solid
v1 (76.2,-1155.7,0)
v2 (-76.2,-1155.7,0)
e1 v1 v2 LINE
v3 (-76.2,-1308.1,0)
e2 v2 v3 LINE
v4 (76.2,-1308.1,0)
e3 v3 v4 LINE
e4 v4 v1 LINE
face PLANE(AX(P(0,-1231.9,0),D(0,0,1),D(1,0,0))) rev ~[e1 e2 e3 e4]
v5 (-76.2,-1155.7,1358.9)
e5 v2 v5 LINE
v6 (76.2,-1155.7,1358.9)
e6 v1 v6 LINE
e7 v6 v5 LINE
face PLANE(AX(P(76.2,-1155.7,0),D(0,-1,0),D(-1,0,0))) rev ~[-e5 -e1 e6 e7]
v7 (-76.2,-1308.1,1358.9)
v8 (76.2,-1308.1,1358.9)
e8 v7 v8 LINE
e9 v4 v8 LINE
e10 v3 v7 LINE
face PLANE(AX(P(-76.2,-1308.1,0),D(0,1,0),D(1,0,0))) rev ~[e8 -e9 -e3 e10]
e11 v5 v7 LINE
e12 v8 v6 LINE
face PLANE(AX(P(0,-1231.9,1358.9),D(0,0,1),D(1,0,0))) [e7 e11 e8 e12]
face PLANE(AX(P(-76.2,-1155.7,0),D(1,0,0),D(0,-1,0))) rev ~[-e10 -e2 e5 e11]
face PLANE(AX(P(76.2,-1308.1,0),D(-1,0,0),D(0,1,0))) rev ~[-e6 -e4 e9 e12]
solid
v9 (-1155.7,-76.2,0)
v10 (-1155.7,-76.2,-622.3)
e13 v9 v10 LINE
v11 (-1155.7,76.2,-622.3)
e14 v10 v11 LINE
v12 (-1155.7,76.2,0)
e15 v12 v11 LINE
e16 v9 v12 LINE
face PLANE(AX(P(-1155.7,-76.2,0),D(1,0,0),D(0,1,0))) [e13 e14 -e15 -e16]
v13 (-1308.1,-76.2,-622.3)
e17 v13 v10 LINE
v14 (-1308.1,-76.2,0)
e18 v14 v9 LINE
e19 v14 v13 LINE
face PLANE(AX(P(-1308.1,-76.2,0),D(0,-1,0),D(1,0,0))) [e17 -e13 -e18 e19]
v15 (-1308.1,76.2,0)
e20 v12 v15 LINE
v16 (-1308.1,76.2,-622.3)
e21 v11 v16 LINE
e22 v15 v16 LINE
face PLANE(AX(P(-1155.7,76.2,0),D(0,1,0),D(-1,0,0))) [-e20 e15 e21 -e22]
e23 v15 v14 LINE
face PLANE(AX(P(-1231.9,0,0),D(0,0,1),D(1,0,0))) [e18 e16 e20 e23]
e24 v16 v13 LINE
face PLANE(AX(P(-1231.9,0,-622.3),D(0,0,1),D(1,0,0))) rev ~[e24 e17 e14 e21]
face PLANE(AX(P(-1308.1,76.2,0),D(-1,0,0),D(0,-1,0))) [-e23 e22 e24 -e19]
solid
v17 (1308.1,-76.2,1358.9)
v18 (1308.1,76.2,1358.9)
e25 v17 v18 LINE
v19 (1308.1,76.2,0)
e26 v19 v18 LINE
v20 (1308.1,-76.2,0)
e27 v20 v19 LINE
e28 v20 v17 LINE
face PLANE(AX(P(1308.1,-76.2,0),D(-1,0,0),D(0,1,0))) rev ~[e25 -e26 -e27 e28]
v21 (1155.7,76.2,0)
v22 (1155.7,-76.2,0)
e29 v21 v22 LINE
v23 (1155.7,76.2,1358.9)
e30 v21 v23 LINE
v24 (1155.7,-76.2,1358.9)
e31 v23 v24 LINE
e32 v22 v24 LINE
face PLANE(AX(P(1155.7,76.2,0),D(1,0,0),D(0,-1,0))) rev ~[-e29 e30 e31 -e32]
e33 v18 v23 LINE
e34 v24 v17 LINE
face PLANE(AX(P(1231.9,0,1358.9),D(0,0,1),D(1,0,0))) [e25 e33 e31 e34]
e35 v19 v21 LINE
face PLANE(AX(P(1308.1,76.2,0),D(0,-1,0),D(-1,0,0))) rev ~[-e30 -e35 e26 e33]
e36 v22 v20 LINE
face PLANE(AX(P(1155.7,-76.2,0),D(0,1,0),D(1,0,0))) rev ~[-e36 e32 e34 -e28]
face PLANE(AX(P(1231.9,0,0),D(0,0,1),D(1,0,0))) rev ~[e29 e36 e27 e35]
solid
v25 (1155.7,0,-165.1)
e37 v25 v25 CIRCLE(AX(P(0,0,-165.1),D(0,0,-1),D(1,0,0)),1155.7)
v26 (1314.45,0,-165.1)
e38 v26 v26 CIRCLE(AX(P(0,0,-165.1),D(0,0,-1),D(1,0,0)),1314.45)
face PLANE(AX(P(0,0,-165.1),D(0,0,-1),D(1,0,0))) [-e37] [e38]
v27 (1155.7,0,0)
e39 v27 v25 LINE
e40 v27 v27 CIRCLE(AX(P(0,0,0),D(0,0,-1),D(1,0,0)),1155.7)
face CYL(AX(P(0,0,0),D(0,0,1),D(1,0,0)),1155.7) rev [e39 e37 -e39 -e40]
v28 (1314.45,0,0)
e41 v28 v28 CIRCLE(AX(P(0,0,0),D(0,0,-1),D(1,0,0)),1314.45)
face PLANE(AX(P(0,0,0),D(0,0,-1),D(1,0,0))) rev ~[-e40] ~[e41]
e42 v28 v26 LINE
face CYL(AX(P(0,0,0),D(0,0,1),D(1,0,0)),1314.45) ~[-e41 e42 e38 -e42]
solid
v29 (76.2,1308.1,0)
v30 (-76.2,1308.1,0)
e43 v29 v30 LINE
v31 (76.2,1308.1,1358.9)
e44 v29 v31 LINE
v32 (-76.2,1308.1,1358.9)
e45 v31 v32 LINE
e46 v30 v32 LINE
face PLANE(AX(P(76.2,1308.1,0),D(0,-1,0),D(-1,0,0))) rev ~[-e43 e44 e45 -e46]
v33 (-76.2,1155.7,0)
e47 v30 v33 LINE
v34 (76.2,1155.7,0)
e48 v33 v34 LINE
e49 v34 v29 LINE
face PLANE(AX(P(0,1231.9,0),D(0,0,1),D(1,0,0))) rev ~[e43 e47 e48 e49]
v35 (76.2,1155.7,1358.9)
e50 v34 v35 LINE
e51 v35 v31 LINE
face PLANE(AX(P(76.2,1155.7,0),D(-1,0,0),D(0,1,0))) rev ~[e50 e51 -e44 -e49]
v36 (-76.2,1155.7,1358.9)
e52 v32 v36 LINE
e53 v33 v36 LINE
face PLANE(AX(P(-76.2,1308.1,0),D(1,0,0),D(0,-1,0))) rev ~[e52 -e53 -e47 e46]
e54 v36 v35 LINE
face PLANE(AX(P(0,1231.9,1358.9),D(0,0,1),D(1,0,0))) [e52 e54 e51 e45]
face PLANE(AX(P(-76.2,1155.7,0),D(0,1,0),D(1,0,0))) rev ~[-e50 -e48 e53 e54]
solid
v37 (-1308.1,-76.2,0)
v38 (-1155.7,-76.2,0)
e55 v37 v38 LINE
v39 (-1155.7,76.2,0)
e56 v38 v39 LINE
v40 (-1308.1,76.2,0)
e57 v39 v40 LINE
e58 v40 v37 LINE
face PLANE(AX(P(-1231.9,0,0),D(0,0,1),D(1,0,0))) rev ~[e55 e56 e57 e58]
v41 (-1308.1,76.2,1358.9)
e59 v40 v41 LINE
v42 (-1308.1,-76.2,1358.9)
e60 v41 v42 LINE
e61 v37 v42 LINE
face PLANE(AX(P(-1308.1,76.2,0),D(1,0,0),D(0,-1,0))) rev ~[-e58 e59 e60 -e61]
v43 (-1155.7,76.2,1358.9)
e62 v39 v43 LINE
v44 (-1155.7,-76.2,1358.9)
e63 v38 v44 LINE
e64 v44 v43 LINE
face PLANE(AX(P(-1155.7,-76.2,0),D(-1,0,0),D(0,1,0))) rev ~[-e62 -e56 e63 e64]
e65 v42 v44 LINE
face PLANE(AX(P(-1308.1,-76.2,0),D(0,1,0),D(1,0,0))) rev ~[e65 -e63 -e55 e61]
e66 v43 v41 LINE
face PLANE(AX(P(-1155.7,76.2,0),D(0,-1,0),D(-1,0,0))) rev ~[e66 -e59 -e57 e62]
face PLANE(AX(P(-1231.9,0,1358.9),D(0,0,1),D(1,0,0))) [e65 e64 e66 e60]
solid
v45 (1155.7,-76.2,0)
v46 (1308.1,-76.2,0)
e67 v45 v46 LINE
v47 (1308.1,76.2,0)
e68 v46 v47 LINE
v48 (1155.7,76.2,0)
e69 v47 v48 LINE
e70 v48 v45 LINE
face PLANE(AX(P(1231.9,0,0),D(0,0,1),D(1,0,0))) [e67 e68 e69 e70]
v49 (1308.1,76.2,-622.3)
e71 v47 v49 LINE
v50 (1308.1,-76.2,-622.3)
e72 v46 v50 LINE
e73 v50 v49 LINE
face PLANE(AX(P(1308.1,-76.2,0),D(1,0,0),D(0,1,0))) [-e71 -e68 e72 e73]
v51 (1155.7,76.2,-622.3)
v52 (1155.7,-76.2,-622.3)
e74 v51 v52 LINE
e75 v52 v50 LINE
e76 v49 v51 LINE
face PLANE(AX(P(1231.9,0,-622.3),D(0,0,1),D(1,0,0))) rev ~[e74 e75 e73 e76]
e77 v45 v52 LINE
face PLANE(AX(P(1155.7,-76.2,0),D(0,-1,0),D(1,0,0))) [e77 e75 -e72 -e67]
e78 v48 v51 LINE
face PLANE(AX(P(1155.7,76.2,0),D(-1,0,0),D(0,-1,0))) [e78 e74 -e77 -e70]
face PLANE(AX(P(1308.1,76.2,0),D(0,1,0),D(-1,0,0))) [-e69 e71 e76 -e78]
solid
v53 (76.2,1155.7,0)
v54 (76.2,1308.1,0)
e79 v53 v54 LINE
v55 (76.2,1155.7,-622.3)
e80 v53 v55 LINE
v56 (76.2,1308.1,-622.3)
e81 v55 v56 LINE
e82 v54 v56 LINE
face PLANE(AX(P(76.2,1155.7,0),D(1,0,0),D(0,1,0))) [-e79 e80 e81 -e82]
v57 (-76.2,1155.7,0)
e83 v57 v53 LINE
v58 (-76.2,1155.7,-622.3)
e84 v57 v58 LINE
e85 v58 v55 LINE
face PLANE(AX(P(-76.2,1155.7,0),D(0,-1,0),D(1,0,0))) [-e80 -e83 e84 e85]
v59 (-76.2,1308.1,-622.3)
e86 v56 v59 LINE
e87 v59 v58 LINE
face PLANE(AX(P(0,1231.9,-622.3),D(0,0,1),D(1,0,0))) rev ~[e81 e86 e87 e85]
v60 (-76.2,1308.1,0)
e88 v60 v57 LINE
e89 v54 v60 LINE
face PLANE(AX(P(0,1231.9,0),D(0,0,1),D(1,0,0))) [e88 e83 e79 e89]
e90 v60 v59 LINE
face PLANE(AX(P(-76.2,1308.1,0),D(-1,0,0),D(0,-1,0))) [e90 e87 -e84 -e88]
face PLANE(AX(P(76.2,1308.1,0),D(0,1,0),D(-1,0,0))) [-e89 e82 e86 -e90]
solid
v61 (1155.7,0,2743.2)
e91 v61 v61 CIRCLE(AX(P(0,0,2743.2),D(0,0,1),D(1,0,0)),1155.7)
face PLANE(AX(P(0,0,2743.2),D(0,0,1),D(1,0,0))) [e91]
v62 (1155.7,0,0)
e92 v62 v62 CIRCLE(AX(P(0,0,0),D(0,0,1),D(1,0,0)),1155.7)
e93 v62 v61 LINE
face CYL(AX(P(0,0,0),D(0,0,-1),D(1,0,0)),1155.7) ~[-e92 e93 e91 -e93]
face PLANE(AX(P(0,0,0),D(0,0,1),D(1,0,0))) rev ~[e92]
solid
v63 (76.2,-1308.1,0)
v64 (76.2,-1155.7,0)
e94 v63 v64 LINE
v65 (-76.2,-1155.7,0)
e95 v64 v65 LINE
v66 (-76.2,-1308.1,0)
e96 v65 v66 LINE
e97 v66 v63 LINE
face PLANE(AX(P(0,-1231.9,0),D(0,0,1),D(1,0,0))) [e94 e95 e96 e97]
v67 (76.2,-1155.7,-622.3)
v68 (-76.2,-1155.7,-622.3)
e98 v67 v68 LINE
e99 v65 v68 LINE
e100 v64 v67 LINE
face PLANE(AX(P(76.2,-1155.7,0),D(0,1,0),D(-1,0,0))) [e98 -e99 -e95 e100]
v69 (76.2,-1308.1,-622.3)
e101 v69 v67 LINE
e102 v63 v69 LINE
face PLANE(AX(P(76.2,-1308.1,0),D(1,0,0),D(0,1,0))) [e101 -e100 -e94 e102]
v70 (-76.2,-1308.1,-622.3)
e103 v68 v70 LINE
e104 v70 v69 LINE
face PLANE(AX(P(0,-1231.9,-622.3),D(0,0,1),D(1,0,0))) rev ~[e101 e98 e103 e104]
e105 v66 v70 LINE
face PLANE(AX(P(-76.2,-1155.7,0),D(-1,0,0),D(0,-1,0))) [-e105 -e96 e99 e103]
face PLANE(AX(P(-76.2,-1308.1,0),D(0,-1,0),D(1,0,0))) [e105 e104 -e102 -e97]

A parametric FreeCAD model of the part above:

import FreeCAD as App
import Part
import Sketcher
Q = App.Units.Quantity


def add_polygon(sketch, points):
    """Adds a closed chain of lines whose ends are joined by coincident constraints."""
    first, n = sketch.GeometryCount, len(points)
    for a, b in zip(points, points[1:] + points[:1]):
        sketch.addGeometry(Part.LineSegment(App.Vector(*a, 0), App.Vector(*b, 0)), False)
    for i in range(n):
        sketch.addConstraint(Sketcher.Constraint("Coincident", first + i, 2, first + (i + 1) % n, 1))

doc = App.newDocument("Part")
body = doc.addObject("PartDesign::Body", "Body")

sketch1 = body.newObject("Sketcher::SketchObject", "Sketch")
sketch1.AttachmentSupport = (doc.getObject("XY_Plane"), [""])
sketch1.MapMode = "FlatFace"
sketch1.addGeometry(Part.Circle(App.Vector(0, 0, 0), App.Vector(0, 0, 1), 1155.7), False)
sketch1.addConstraint([
    Sketcher.Constraint("Coincident", 0, 3, -1, 1),
    Sketcher.Constraint("Diameter", 0, Q("91 in")),
])
pad1 = body.newObject("PartDesign::Pad", "Pad")
pad1.Profile = sketch1
pad1.Length = Q("108 in")
body2 = doc.addObject("PartDesign::Body", "Body001")

sketch2 = body2.newObject("Sketcher::SketchObject", "Sketch001")
sketch2.AttachmentSupport = (doc.getObject("XY_Plane001"), [""])
sketch2.MapMode = "FlatFace"
sketch2.addGeometry([
    Part.Circle(App.Vector(0, 0, 0), App.Vector(0, 0, 1), 1314.45),
    Part.Circle(App.Vector(0, 0, 0), App.Vector(0, 0, 1), 1155.7),
], False)
sketch2.addConstraint([
    Sketcher.Constraint("Coincident", 0, 3, -1, 1),
    Sketcher.Constraint("Coincident", 1, 3, -1, 1),
    Sketcher.Constraint("Diameter", 1, Q("91 in")),
    Sketcher.Constraint("Diameter", 0, Q("103.5 in")),
])
pad2 = body2.newObject("PartDesign::Pad", "Pad001")
pad2.Profile = sketch2
pad2.Length = Q("6.5 in")
pad2.Reversed = True
body3 = doc.addObject("PartDesign::Body", "Body002")
body3.AllowCompound = True

sketch3 = body3.newObject("Sketcher::SketchObject", "Sketch002")
sketch3.AttachmentSupport = (doc.getObject("XY_Plane002"), [""])
sketch3.MapMode = "FlatFace"
add_polygon(sketch3, [(-1155.7, 76.2), (-1308.1, 76.2), (-1308.1, -76.2), (-1155.7, -76.2)])
add_polygon(sketch3, [(76.2, -1308.1), (76.2, -1155.7), (-76.2, -1155.7), (-76.2, -1308.1)])
add_polygon(sketch3, [(1308.1, 76.2), (1155.7, 76.2), (1155.7, -76.2), (1308.1, -76.2)])
add_polygon(sketch3, [(-76.2, 1308.1), (-76.2, 1155.7), (76.2, 1155.7), (76.2, 1308.1)])
sketch3.addConstraint([
    Sketcher.Constraint("Horizontal", 0),
    Sketcher.Constraint("Vertical", 1),
    Sketcher.Constraint("Horizontal", 2),
    Sketcher.Constraint("Vertical", 3),
    Sketcher.Constraint("Vertical", 4),
    Sketcher.Constraint("Horizontal", 5),
    Sketcher.Constraint("Vertical", 6),
    Sketcher.Constraint("Horizontal", 7),
    Sketcher.Constraint("Horizontal", 8),
    Sketcher.Constraint("Vertical", 9),
    Sketcher.Constraint("Horizontal", 10),
    Sketcher.Constraint("Vertical", 11),
    Sketcher.Constraint("Vertical", 12),
    Sketcher.Constraint("Horizontal", 13),
    Sketcher.Constraint("Vertical", 14),
    Sketcher.Constraint("Horizontal", 15),
    Sketcher.Constraint("Symmetric", 2, 2, 8, 2, -1, 1),
    Sketcher.Constraint("Symmetric", 0, 2, 10, 2, -1, 1),
    Sketcher.Constraint("Symmetric", 4, 2, 12, 2, -1, 1),
    Sketcher.Constraint("Symmetric", 6, 2, 14, 2, -1, 1),
    Sketcher.Constraint("Horizontal", 3, 2, 8, 2),
    Sketcher.Constraint("Vertical", 6, 2, 12, 2),
    Sketcher.Constraint("Equal", 2, 5),
    Sketcher.Constraint("Equal", 15, 1),
    Sketcher.Constraint("Equal", 3, 4),
    Sketcher.Constraint("DistanceX", 0, 2, 0, 1, Q("6 in")),
    Sketcher.Constraint("DistanceX", 3, 2, 8, 2, Q("91 in")),
    Sketcher.Constraint("DistanceY", 4, 2, -1, 1, Q("45.5 in")),
])
pad3 = body3.newObject("PartDesign::Pad", "Pad002")
pad3.Profile = sketch3
pad3.Length = Q("53.5 in")
body4 = doc.addObject("PartDesign::Body", "Body003")
body4.AllowCompound = True

sketch4 = body4.newObject("Sketcher::SketchObject", "Sketch003")
sketch4.AttachmentSupport = (doc.getObject("XY_Plane003"), [""])
sketch4.MapMode = "FlatFace"
add_polygon(sketch4, [(-1155.7, 76.2), (-1308.1, 76.2), (-1308.1, -76.2), (-1155.7, -76.2)])
add_polygon(sketch4, [(76.2, -1308.1), (76.2, -1155.7), (-76.2, -1155.7), (-76.2, -1308.1)])
add_polygon(sketch4, [(1308.1, 76.2), (1155.7, 76.2), (1155.7, -76.2), (1308.1, -76.2)])
add_polygon(sketch4, [(-76.2, 1308.1), (-76.2, 1155.7), (76.2, 1155.7), (76.2, 1308.1)])
sketch4.addConstraint([
    Sketcher.Constraint("Horizontal", 0),
    Sketcher.Constraint("Vertical", 1),
    Sketcher.Constraint("Horizontal", 2),
    Sketcher.Constraint("Vertical", 3),
    Sketcher.Constraint("Vertical", 4),
    Sketcher.Constraint("Horizontal", 5),
    Sketcher.Constraint("Vertical", 6),
    Sketcher.Constraint("Horizontal", 7),
    Sketcher.Constraint("Horizontal", 8),
    Sketcher.Constraint("Vertical", 9),
    Sketcher.Constraint("Horizontal", 10),
    Sketcher.Constraint("Vertical", 11),
    Sketcher.Constraint("Vertical", 12),
    Sketcher.Constraint("Horizontal", 13),
    Sketcher.Constraint("Vertical", 14),
    Sketcher.Constraint("Horizontal", 15),
    Sketcher.Constraint("Symmetric", 2, 2, 8, 2, -1, 1),
    Sketcher.Constraint("Symmetric", 0, 2, 10, 2, -1, 1),
    Sketcher.Constraint("Symmetric", 4, 2, 12, 2, -1, 1),
    Sketcher.Constraint("Symmetric", 6, 2, 14, 2, -1, 1),
    Sketcher.Constraint("Horizontal", 3, 2, 8, 2),
    Sketcher.Constraint("Vertical", 6, 2, 12, 2),
    Sketcher.Constraint("Equal", 2, 5),
    Sketcher.Constraint("Equal", 15, 1),
    Sketcher.Constraint("Equal", 3, 4),
    Sketcher.Constraint("DistanceX", 0, 2, 0, 1, Q("6 in")),
    Sketcher.Constraint("DistanceX", 3, 2, 8, 2, Q("91 in")),
    Sketcher.Constraint("DistanceY", 4, 2, -1, 1, Q("45.5 in")),
])
pad4 = body4.newObject("PartDesign::Pad", "Pad003")
pad4.Profile = sketch4
pad4.Length = Q("24.5 in")
pad4.Reversed = True

doc.recompute()
